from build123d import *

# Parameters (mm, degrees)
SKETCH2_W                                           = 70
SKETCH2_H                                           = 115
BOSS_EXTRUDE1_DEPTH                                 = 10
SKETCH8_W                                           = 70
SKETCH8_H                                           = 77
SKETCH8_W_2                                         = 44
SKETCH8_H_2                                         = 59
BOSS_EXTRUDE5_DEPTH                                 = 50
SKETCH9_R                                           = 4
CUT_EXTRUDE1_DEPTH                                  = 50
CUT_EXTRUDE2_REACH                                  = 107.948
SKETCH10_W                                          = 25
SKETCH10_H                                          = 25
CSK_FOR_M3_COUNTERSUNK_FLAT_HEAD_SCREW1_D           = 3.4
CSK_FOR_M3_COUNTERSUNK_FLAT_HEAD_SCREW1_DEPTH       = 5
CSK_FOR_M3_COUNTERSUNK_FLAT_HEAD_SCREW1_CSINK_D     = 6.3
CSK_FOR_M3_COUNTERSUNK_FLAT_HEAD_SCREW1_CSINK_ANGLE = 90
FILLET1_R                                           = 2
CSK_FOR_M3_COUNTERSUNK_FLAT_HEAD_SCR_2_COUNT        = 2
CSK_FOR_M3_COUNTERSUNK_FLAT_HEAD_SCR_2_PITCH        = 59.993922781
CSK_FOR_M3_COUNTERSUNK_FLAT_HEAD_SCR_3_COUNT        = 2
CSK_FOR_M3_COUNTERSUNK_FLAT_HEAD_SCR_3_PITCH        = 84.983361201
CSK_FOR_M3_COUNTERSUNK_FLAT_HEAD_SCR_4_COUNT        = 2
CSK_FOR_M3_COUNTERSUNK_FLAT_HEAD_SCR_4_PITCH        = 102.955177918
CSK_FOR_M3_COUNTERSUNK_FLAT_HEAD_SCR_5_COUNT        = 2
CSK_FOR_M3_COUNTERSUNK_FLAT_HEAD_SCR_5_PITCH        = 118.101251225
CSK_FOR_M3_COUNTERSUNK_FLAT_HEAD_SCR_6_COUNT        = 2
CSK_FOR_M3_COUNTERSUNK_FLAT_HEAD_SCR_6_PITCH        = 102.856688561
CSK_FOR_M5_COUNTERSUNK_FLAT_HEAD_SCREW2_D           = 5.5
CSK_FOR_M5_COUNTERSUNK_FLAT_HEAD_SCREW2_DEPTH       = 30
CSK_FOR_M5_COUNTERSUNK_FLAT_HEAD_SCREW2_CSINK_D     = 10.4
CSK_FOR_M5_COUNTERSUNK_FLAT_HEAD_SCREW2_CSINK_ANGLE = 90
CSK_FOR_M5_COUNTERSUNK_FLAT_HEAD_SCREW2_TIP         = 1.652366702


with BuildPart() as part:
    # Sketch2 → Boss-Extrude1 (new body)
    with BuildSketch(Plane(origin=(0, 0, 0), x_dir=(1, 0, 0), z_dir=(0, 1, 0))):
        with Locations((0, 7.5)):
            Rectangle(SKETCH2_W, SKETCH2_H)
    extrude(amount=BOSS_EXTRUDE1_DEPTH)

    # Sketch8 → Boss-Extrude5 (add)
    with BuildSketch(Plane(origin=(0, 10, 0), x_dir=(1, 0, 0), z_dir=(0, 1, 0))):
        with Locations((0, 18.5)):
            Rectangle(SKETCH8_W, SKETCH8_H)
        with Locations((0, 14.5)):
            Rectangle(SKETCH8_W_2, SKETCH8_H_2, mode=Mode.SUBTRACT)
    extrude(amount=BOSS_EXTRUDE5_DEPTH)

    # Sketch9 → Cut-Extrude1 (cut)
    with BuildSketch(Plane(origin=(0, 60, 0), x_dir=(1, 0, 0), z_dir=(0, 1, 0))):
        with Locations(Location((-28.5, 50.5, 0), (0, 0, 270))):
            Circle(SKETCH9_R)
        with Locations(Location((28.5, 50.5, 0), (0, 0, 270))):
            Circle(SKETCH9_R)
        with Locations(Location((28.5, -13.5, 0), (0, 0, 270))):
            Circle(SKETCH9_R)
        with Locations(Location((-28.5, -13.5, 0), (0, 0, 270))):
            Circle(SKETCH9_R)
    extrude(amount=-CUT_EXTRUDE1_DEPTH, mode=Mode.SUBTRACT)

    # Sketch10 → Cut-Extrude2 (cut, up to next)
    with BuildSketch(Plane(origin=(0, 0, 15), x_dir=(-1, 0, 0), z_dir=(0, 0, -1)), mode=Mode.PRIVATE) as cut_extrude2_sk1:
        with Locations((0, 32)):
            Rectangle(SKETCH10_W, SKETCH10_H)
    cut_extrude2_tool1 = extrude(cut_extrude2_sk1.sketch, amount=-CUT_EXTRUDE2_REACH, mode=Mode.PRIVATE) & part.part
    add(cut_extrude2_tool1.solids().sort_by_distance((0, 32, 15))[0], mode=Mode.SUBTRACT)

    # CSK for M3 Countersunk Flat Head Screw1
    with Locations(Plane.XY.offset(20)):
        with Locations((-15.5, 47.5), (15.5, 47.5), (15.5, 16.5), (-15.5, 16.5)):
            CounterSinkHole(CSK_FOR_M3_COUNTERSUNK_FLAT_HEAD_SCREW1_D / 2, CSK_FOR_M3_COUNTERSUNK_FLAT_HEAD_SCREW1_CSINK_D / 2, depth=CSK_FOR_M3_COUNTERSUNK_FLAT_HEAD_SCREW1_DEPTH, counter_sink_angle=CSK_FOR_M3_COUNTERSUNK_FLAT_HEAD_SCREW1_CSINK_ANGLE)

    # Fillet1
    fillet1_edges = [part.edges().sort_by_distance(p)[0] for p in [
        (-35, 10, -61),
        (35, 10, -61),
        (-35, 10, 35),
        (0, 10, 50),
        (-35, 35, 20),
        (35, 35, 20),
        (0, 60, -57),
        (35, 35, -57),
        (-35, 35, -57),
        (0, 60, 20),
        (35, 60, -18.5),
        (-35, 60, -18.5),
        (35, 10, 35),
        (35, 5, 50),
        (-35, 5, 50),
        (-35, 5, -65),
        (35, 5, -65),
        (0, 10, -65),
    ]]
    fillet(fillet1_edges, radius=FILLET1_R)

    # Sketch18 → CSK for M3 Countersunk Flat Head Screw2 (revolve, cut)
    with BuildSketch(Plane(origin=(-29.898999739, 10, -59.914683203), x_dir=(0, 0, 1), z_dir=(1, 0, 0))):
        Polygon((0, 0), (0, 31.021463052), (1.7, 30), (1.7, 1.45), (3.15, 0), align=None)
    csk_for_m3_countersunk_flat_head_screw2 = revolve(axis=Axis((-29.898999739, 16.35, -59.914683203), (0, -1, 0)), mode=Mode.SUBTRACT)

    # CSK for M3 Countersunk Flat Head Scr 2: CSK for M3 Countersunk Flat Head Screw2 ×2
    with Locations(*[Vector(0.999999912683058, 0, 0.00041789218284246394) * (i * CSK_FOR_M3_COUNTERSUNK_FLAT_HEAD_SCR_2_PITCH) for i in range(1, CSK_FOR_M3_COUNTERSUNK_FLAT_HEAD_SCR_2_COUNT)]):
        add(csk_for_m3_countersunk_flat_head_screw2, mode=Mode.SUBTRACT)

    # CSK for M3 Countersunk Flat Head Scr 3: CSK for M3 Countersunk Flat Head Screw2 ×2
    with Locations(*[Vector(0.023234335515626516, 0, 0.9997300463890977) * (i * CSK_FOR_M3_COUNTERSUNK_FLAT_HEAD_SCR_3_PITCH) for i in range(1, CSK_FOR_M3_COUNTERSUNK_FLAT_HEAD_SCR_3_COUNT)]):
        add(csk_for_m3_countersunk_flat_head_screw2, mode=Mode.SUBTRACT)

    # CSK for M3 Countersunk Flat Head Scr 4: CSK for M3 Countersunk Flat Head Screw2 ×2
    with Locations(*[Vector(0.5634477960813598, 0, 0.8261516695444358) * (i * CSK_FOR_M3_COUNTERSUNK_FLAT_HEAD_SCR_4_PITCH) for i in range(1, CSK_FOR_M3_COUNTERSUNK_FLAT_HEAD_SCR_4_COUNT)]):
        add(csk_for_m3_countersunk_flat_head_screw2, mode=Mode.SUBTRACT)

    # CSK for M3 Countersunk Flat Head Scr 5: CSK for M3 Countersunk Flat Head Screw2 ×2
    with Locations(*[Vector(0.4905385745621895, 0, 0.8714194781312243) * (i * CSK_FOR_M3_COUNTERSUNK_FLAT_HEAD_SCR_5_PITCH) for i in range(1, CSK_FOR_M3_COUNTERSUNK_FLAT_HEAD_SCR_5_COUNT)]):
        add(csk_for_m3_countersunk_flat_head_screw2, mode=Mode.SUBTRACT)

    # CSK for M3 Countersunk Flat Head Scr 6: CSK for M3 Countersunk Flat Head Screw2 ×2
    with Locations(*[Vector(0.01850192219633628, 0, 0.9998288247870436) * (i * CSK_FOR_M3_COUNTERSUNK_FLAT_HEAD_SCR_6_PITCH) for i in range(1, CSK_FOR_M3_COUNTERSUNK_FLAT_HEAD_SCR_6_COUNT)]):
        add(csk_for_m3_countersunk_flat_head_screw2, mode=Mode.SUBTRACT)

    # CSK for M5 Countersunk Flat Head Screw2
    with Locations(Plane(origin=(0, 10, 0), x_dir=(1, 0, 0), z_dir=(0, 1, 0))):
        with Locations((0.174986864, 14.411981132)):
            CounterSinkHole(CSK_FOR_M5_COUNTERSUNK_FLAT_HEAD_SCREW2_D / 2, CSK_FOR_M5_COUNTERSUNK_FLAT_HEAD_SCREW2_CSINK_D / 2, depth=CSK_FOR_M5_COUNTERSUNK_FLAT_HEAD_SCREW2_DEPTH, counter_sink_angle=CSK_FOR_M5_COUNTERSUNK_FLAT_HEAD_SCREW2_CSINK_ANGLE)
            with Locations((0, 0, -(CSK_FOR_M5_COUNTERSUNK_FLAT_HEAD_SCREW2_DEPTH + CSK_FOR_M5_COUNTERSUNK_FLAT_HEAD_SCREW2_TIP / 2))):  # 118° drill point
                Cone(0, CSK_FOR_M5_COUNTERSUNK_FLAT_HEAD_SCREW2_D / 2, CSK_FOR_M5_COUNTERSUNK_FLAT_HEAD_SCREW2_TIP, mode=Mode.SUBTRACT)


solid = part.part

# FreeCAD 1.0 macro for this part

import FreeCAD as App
import Part
import Sketcher
from FreeCAD import Vector
Q = App.Units.Quantity


def edges_at(feature, points):
    """Names of the edges that pass closest to the given points."""
    edges = feature.Shape.Edges
    near = lambda p: min(range(len(edges)), key=lambda i: edges[i].distToShape(Part.Vertex(*p))[0])
    return sorted({f"Edge{near(p) + 1}" for p in points})

doc = App.newDocument("Part")
body = doc.addObject("PartDesign::Body", "Body")

sketch1 = doc.addObject("Sketcher::SketchObject", "Sketch")
body.addObject(sketch1)
sketch1.AttachmentSupport = (doc.XZ_Plane, [""])
sketch1.MapMode = "FlatFace"
sketch1.addGeometry([
    Part.LineSegment(Vector(-35, -65, 0), Vector(-35, 50, 0)),
    Part.LineSegment(Vector(-35, 50, 0), Vector(35, 50, 0)),
    Part.LineSegment(Vector(35, 50, 0), Vector(35, -65, 0)),
    Part.LineSegment(Vector(35, -65, 0), Vector(-35, -65, 0)),
], False)
sketch1.addConstraint([
    Sketcher.Constraint("Coincident", 0, 2, 1, 1),
    Sketcher.Constraint("Coincident", 1, 2, 2, 1),
    Sketcher.Constraint("Coincident", 2, 2, 3, 1),
    Sketcher.Constraint("Coincident", 3, 2, 0, 1),
    Sketcher.Constraint("Vertical", 0),
    Sketcher.Constraint("Horizontal", 1),
    Sketcher.Constraint("Vertical", 2),
    Sketcher.Constraint("Horizontal", 3),
    Sketcher.Constraint("DistanceX", 1, 1, 1, 2, Q("70 mm")),
    Sketcher.Constraint("DistanceY", 0, 1, 0, 2, Q("115 mm")),
    Sketcher.Constraint("DistanceX", 0, 2, -1, 1, Q("35 mm")),
    Sketcher.Constraint("DistanceY", -1, 1, 0, 2, Q("50 mm")),
])
pad1 = doc.addObject("PartDesign::Pad", "Pad")
body.addObject(pad1)
pad1.Profile = sketch1
pad1.Length = 10
pad1.Reversed = True

sketch2 = doc.addObject("Sketcher::SketchObject", "Sketch001")
body.addObject(sketch2)
sketch2.AttachmentSupport = (doc.XZ_Plane, [""])
sketch2.MapMode = "FlatFace"
sketch2.AttachmentOffset = App.Placement(Vector(0, 0, -10), App.Rotation())
sketch2.addGeometry([
    Part.LineSegment(Vector(-35, -57, 0), Vector(-35, 20, 0)),
    Part.LineSegment(Vector(-35, 20, 0), Vector(35, 20, 0)),
    Part.LineSegment(Vector(35, 20, 0), Vector(35, -57, 0)),
    Part.LineSegment(Vector(35, -57, 0), Vector(-35, -57, 0)),
    Part.LineSegment(Vector(22, 15, 0), Vector(-22, 15, 0)),
    Part.LineSegment(Vector(-22, 15, 0), Vector(-22, -44, 0)),
    Part.LineSegment(Vector(-22, -44, 0), Vector(22, -44, 0)),
    Part.LineSegment(Vector(22, -44, 0), Vector(22, 15, 0)),
], False)
sketch2.addConstraint([
    Sketcher.Constraint("Coincident", 0, 2, 1, 1),
    Sketcher.Constraint("Coincident", 1, 2, 2, 1),
    Sketcher.Constraint("Coincident", 2, 2, 3, 1),
    Sketcher.Constraint("Coincident", 3, 2, 0, 1),
    Sketcher.Constraint("Coincident", 4, 2, 5, 1),
    Sketcher.Constraint("Coincident", 5, 2, 6, 1),
    Sketcher.Constraint("Coincident", 6, 2, 7, 1),
    Sketcher.Constraint("Coincident", 7, 2, 4, 1),
    Sketcher.Constraint("Vertical", 0),
    Sketcher.Constraint("Horizontal", 1),
    Sketcher.Constraint("Vertical", 2),
    Sketcher.Constraint("Horizontal", 3),
    Sketcher.Constraint("Horizontal", 4),
    Sketcher.Constraint("Vertical", 5),
    Sketcher.Constraint("Horizontal", 6),
    Sketcher.Constraint("Vertical", 7),
    Sketcher.Constraint("DistanceX", 1, 1, 1, 2, Q("70 mm")),
    Sketcher.Constraint("DistanceX", 4, 2, 4, 1, Q("44 mm")),
    Sketcher.Constraint("DistanceY", 0, 1, 0, 2, Q("77 mm")),
    Sketcher.Constraint("DistanceY", 5, 2, 5, 1, Q("59 mm")),
    Sketcher.Constraint("DistanceX", 0, 2, -1, 1, Q("35 mm")),
    Sketcher.Constraint("DistanceY", -1, 1, 0, 2, Q("20 mm")),
    Sketcher.Constraint("DistanceX", 4, 2, -1, 1, Q("22 mm")),
    Sketcher.Constraint("DistanceY", -1, 1, 4, 2, Q("15 mm")),
])
pad2 = doc.addObject("PartDesign::Pad", "Pad001")
body.addObject(pad2)
pad2.Profile = sketch2
pad2.Length = 50
pad2.Reversed = True

sketch3 = doc.addObject("Sketcher::SketchObject", "Sketch002")
body.addObject(sketch3)
sketch3.AttachmentSupport = (doc.XZ_Plane, [""])
sketch3.MapMode = "FlatFace"
sketch3.AttachmentOffset = App.Placement(Vector(0, 0, -60), App.Rotation())
sketch3.addGeometry([
    Part.Circle(Vector(-28.5, -50.5, 0), Vector(0, 0, 1), 4),
    Part.Circle(Vector(28.5, -50.5, 0), Vector(0, 0, 1), 4),
    Part.Circle(Vector(28.5, 13.5, 0), Vector(0, 0, 1), 4),
    Part.Circle(Vector(-28.5, 13.5, 0), Vector(0, 0, 1), 4),
], False)
sketch3.addConstraint([
    Sketcher.Constraint("Equal", 0, 1),
    Sketcher.Constraint("Equal", 1, 2),
    Sketcher.Constraint("Equal", 2, 3),
    Sketcher.Constraint("Symmetric", 0, 3, 1, 3, -2),
    Sketcher.Constraint("Symmetric", 2, 3, 3, 3, -2),
    Sketcher.Constraint("Vertical", 1, 3, 2, 3),
    Sketcher.Constraint("Diameter", 0, Q("8 mm")),
    Sketcher.Constraint("DistanceX", 0, 3, 1, 3, Q("57 mm")),
    Sketcher.Constraint("DistanceY", 1, 3, 2, 3, Q("64 mm")),
    Sketcher.Constraint("DistanceY", 0, 3, -1, 1, Q("50.5 mm")),
])
pocket1 = doc.addObject("PartDesign::Pocket", "Pocket")
body.addObject(pocket1)
pocket1.Profile = sketch3
pocket1.Length = 50
pocket1.Reversed = True

sketch4 = doc.addObject("Sketcher::SketchObject", "Sketch003")
body.addObject(sketch4)
sketch4.AttachmentSupport = (doc.XY_Plane, [""])
sketch4.MapMode = "FlatFace"
sketch4.AttachmentOffset = App.Placement(Vector(0, 0, 15), App.Rotation())
sketch4.addGeometry([
    Part.LineSegment(Vector(12.5, 44.5, 0), Vector(12.5, 19.5, 0)),
    Part.LineSegment(Vector(12.5, 19.5, 0), Vector(-12.5, 19.5, 0)),
    Part.LineSegment(Vector(-12.5, 19.5, 0), Vector(-12.5, 44.5, 0)),
    Part.LineSegment(Vector(-12.5, 44.5, 0), Vector(12.5, 44.5, 0)),
], False)
sketch4.addConstraint([
    Sketcher.Constraint("Coincident", 0, 2, 1, 1),
    Sketcher.Constraint("Coincident", 1, 2, 2, 1),
    Sketcher.Constraint("Coincident", 2, 2, 3, 1),
    Sketcher.Constraint("Coincident", 3, 2, 0, 1),
    Sketcher.Constraint("Vertical", 0),
    Sketcher.Constraint("Horizontal", 1),
    Sketcher.Constraint("Vertical", 2),
    Sketcher.Constraint("Horizontal", 3),
    Sketcher.Constraint("Equal", 3, 0),
    Sketcher.Constraint("DistanceX", 1, 2, 1, 1, Q("25 mm")),
    Sketcher.Constraint("DistanceX", -1, 1, 0, 2, Q("12.5 mm")),
    Sketcher.Constraint("DistanceY", -1, 1, 0, 2, Q("19.5 mm")),
])
pocket2 = doc.addObject("PartDesign::Pocket", "Pocket001")
body.addObject(pocket2)
pocket2.Profile = sketch4
pocket2.Type = "UpToFirst"
pocket2.Reversed = True

sketch5 = doc.addObject("Sketcher::SketchObject", "Sketch004")
body.addObject(sketch5)
sketch5.AttachmentSupport = (doc.XY_Plane, [""])
sketch5.MapMode = "FlatFace"
sketch5.AttachmentOffset = App.Placement(Vector(0, 0, 20), App.Rotation())
sketch5.addGeometry([
    Part.Circle(Vector(-15.5, 47.5, 0), Vector(0, 0, 1), 1.7),
    Part.Circle(Vector(15.5, 47.5, 0), Vector(0, 0, 1), 1.7),
    Part.Circle(Vector(15.5, 16.5, 0), Vector(0, 0, 1), 1.7),
    Part.Circle(Vector(-15.5, 16.5, 0), Vector(0, 0, 1), 1.7),
], False)
sketch5.addConstraint([
    Sketcher.Constraint("Equal", 0, 1),
    Sketcher.Constraint("Equal", 1, 2),
    Sketcher.Constraint("Equal", 2, 3),
    Sketcher.Constraint("Symmetric", 0, 3, 1, 3, -2),
    Sketcher.Constraint("Symmetric", 2, 3, 3, 3, -2),
    Sketcher.Constraint("Vertical", 1, 3, 2, 3),
    Sketcher.Constraint("Diameter", 0, Q("3.4 mm")),
    Sketcher.Constraint("DistanceX", 0, 3, 1, 3, Q("31 mm")),
    Sketcher.Constraint("DistanceY", 2, 3, 1, 3, Q("31 mm")),
    Sketcher.Constraint("DistanceY", -1, 1, 0, 3, Q("47.5 mm")),
])
doc.recompute()
hole = doc.addObject("PartDesign::Hole", "Hole")
body.addObject(hole)
hole.Profile = sketch5
hole.ThreadType = "None"
hole.Diameter = 3.4
hole.DepthType = "Dimension"
hole.Depth = 5
hole.DrillPoint = "Flat"
hole.HoleCutType = "Countersink"
hole.HoleCutDiameter = 6.3
hole.HoleCutCountersinkAngle = 90
doc.recompute()

fillet = doc.addObject("PartDesign::Fillet", "Fillet")
body.addObject(fillet)
fillet.Base = (hole, edges_at(hole, [
    (-35, 10, -61),
    (35, 10, -61),
    (-35, 10, 35),
    (0, 10, 50),
    (-35, 35, 20),
    (35, 35, 20),
    (0, 60, -57),
    (35, 35, -57),
    (-35, 35, -57),
    (0, 60, 20),
    (35, 60, -18.5),
    (-35, 60, -18.5),
    (35, 10, 35),
    (35, 5, 50),
    (-35, 5, 50),
    (-35, 5, -65),
    (35, 5, -65),
    (0, 10, -65),
]))
fillet.Radius = 2

sketch6 = doc.addObject("Sketcher::SketchObject", "Sketch005")
body.addObject(sketch6)
sketch6.AttachmentSupport = (doc.YZ_Plane, [""])
sketch6.MapMode = "FlatFace"
sketch6.AttachmentOffset = App.Placement(Vector(0, 0, -29.899), App.Rotation())
sketch6.addGeometry([
    Part.LineSegment(Vector(-21.021463, -59.914683, 0), Vector(10, -59.914683, 0)),
    Part.LineSegment(Vector(10, -59.914683, 0), Vector(10, -56.764683, 0)),
    Part.LineSegment(Vector(10, -56.764683, 0), Vector(8.55, -58.214683, 0)),
    Part.LineSegment(Vector(8.55, -58.214683, 0), Vector(-20, -58.214683, 0)),
    Part.LineSegment(Vector(-20, -58.214683, 0), Vector(-21.021463, -59.914683, 0)),
], False)
sketch6.addGeometry(Part.LineSegment(Vector(10, -59.914683, 0), Vector(-21.021463, -59.914683, 0)), True)
sketch6.addConstraint([
    Sketcher.Constraint("Coincident", 0, 2, 1, 1),
    Sketcher.Constraint("Coincident", 1, 2, 2, 1),
    Sketcher.Constraint("Coincident", 2, 2, 3, 1),
    Sketcher.Constraint("Coincident", 3, 2, 4, 1),
    Sketcher.Constraint("Coincident", 4, 2, 0, 1),
    Sketcher.Constraint("Horizontal", 0),
    Sketcher.Constraint("Vertical", 1),
    Sketcher.Constraint("Horizontal", 3),
    Sketcher.Constraint("Horizontal", 5),
    Sketcher.Constraint("Coincident", 5, 1, 0, 2),
    Sketcher.Constraint("Equal", 0, 5),
    Sketcher.Constraint("Angle", 2, Q("-135 deg")),
    Sketcher.Constraint("Angle", 4, Q("-121 deg")),
    Sketcher.Constraint("DistanceX", -1, 1, 0, 2, Q("10 mm")),
    Sketcher.Constraint("DistanceX", 3, 2, -1, 1, Q("20 mm")),
    Sketcher.Constraint("DistanceX", 3, 2, 3, 1, Q("28.55 mm")),
    Sketcher.Constraint("DistanceY", 1, 1, 1, 2, Q("3.15 mm")),
    Sketcher.Constraint("DistanceY", 0, 2, -1, 1, Q("59.914683 mm")),
])
groove = doc.addObject("PartDesign::Groove", "Groove")
body.addObject(groove)
groove.Profile = sketch6
groove.ReferenceAxis = (sketch6, ["Axis0"])
groove.Angle = 360
doc.recompute()

datumline = doc.addObject("PartDesign::Line", "DatumLine")
body.addObject(datumline)
datumline.Placement = App.Placement(Vector(0, 0, 0), App.Rotation(Vector(0, 0, 1), Vector(0.999999913, 0, 0.000417892)))
linearpattern = doc.addObject("PartDesign::LinearPattern", "LinearPattern")
body.addObject(linearpattern)
linearpattern.Originals = [groove]
linearpattern.Direction = (datumline, [""])
linearpattern.Mode = "offset"
linearpattern.Offset = 59.993923
linearpattern.Occurrences = 2
body.Tip = linearpattern
doc.recompute()

datumline2 = doc.addObject("PartDesign::Line", "DatumLine001")
body.addObject(datumline2)
datumline2.Placement = App.Placement(Vector(0, 0, 0), App.Rotation(Vector(0, 0, 1), Vector(0.023234336, 0, 0.999730046)))
linearpattern2 = doc.addObject("PartDesign::LinearPattern", "LinearPattern001")
body.addObject(linearpattern2)
linearpattern2.Originals = [groove]
linearpattern2.Direction = (datumline2, [""])
linearpattern2.Mode = "offset"
linearpattern2.Offset = 84.983361
linearpattern2.Occurrences = 2
body.Tip = linearpattern2
doc.recompute()

datumline3 = doc.addObject("PartDesign::Line", "DatumLine002")
body.addObject(datumline3)
datumline3.Placement = App.Placement(Vector(0, 0, 0), App.Rotation(Vector(0, 0, 1), Vector(0.563447796, 0, 0.82615167)))
linearpattern3 = doc.addObject("PartDesign::LinearPattern", "LinearPattern002")
body.addObject(linearpattern3)
linearpattern3.Originals = [groove]
linearpattern3.Direction = (datumline3, [""])
linearpattern3.Mode = "offset"
linearpattern3.Offset = 102.955178
linearpattern3.Occurrences = 2
body.Tip = linearpattern3
doc.recompute()

datumline4 = doc.addObject("PartDesign::Line", "DatumLine003")
body.addObject(datumline4)
datumline4.Placement = App.Placement(Vector(0, 0, 0), App.Rotation(Vector(0, 0, 1), Vector(0.490538575, 0, 0.871419478)))
linearpattern4 = doc.addObject("PartDesign::LinearPattern", "LinearPattern003")
body.addObject(linearpattern4)
linearpattern4.Originals = [groove]
linearpattern4.Direction = (datumline4, [""])
linearpattern4.Mode = "offset"
linearpattern4.Offset = 118.101251
linearpattern4.Occurrences = 2
body.Tip = linearpattern4
doc.recompute()

datumline5 = doc.addObject("PartDesign::Line", "DatumLine004")
body.addObject(datumline5)
datumline5.Placement = App.Placement(Vector(0, 0, 0), App.Rotation(Vector(0, 0, 1), Vector(0.018501922, 0, 0.999828825)))
linearpattern5 = doc.addObject("PartDesign::LinearPattern", "LinearPattern004")
body.addObject(linearpattern5)
linearpattern5.Originals = [groove]
linearpattern5.Direction = (datumline5, [""])
linearpattern5.Mode = "offset"
linearpattern5.Offset = 102.856689
linearpattern5.Occurrences = 2
body.Tip = linearpattern5

sketch7 = doc.addObject("Sketcher::SketchObject", "Sketch006")
body.addObject(sketch7)
sketch7.AttachmentSupport = (doc.XZ_Plane, [""])
sketch7.MapMode = "FlatFace"
sketch7.AttachmentOffset = App.Placement(Vector(0, 0, -10), App.Rotation())
sketch7.addGeometry(Part.Circle(Vector(0.174987, -14.411981, 0), Vector(0, 0, 1), 2.75), False)
sketch7.addConstraint([
    Sketcher.Constraint("Diameter", 0, Q("5.5 mm")),
    Sketcher.Constraint("DistanceY", 0, 3, -1, 1, Q("14.411981 mm")),
    Sketcher.Constraint("DistanceX", -1, 1, 0, 3, Q("0.174987 mm")),
])
doc.recompute()
hole2 = doc.addObject("PartDesign::Hole", "Hole001")
body.addObject(hole2)
hole2.Profile = sketch7
hole2.ThreadType = "None"
hole2.Diameter = 5.5
hole2.DepthType = "Dimension"
hole2.Depth = 30
hole2.DrillPoint = "Angled"
hole2.DrillPointAngle = 118
hole2.HoleCutType = "Countersink"
hole2.HoleCutDiameter = 10.4
hole2.HoleCutCountersinkAngle = 90
hole2.Reversed = True

doc.recompute()
